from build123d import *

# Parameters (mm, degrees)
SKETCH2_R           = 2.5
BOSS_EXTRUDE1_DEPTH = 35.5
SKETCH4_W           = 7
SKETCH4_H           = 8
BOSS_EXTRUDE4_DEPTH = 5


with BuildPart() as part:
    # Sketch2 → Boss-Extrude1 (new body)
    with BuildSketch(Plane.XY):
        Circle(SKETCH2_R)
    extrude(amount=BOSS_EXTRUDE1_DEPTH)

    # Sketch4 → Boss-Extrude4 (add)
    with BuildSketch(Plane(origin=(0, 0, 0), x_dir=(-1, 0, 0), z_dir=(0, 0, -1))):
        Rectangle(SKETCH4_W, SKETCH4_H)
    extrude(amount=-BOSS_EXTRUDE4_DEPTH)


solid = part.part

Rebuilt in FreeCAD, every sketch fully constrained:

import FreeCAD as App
import Part
import Sketcher

V = App.Vector

doc = App.newDocument("Part")
body = doc.addObject("PartDesign::Body", "Body")

sketch1 = body.newObject("Sketcher::SketchObject", "Sketch")
sketch1.AttachmentSupport = (doc.getObject("XY_Plane"), [""])
sketch1.MapMode = "FlatFace"
sketch1.addGeometry(Part.Circle(V(0, 0, 0), V(0, 0, 1), 2.5), False)
sketch1.addConstraint([
    Sketcher.Constraint("Coincident", 0, 3, -1, 1),
    Sketcher.Constraint("Diameter", 0, 5.0),
])
pad1 = body.newObject("PartDesign::Pad", "Pad")
pad1.Profile = sketch1
pad1.Length = 35.5

sketch2 = body.newObject("Sketcher::SketchObject", "Sketch001")
sketch2.AttachmentSupport = (doc.getObject("XY_Plane"), [""])
sketch2.MapMode = "FlatFace"
sketch2.addGeometry([
    Part.LineSegment(V(4, 4, 0), V(4, -4, 0)),
    Part.LineSegment(V(4, -4, 0), V(-4, -4, 0)),
    Part.LineSegment(V(-4, -4, 0), V(-4, 4, 0)),
    Part.LineSegment(V(-4, 4, 0), V(4, 4, 0)),
], False)
sketch2.addConstraint([
    Sketcher.Constraint("Coincident", 0, 2, 1, 1),
    Sketcher.Constraint("Coincident", 1, 2, 2, 1),
    Sketcher.Constraint("Coincident", 2, 2, 3, 1),
    Sketcher.Constraint("Coincident", 3, 2, 0, 1),
    Sketcher.Constraint("Vertical", 0),
    Sketcher.Constraint("Horizontal", 1),
    Sketcher.Constraint("Vertical", 2),
    Sketcher.Constraint("Horizontal", 3),
    Sketcher.Constraint("Symmetric", 0, 2, 2, 2, -1, 1),
    Sketcher.Constraint("DistanceX", 1, 2, 1, 1, 7.0),
    Sketcher.Constraint("DistanceY", 0, 2, 0, 1, 8.0),
])
pad2 = body.newObject("PartDesign::Pad", "Pad001")
pad2.Profile = sketch2
pad2.Length = 5

doc.recompute()
